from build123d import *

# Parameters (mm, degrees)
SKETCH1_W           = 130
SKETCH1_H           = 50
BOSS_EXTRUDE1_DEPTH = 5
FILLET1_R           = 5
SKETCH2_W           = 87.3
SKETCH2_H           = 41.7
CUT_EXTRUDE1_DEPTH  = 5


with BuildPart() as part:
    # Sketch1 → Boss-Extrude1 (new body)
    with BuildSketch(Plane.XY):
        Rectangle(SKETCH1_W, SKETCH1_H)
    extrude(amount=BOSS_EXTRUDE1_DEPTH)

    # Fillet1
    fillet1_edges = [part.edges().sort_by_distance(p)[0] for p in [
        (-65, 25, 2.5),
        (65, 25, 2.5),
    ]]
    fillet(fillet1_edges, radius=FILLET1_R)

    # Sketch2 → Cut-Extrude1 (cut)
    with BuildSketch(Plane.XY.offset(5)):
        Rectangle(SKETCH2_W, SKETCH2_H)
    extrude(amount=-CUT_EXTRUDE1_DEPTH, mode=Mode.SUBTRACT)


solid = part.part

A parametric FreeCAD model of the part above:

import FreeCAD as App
import Part
import Sketcher


def edges_at(feature, points):
    """Names of the edges that pass closest to the given points."""
    edges = feature.Shape.Edges
    near = lambda p: min(range(len(edges)), key=lambda i: edges[i].distToShape(Part.Vertex(*p))[0])
    return sorted({f"Edge{near(p) + 1}" for p in points})


def add_polygon(sketch, points):
    """Adds a closed chain of lines whose ends are joined by coincident constraints."""
    first, n = sketch.GeometryCount, len(points)
    for a, b in zip(points, points[1:] + points[:1]):
        sketch.addGeometry(Part.LineSegment(App.Vector(*a, 0), App.Vector(*b, 0)), False)
    for i in range(n):
        sketch.addConstraint(Sketcher.Constraint("Coincident", first + i, 2, first + (i + 1) % n, 1))

doc = App.newDocument("Part")
body = doc.addObject("PartDesign::Body", "Body")

# Sketch on XY plane
sketch1 = body.newObject("Sketcher::SketchObject", "Sketch")
sketch1.AttachmentSupport = (doc.getObject("XY_Plane"), [""])
sketch1.MapMode = "FlatFace"
add_polygon(sketch1, [(-65, 25), (-65, -25), (65, -25), (65, 25)])  # lines 0-3
sketch1.addConstraint([
    Sketcher.Constraint("Vertical", 0),
    Sketcher.Constraint("Horizontal", 1),
    Sketcher.Constraint("Vertical", 2),
    Sketcher.Constraint("Horizontal", 3),
    Sketcher.Constraint("Symmetric", 0, 2, 2, 2, -1, 1),
    Sketcher.Constraint("DistanceX", 1, 1, 1, 2, 130.0),
    Sketcher.Constraint("DistanceY", 0, 2, 0, 1, 50.0),
])
pad1 = body.newObject("PartDesign::Pad", "Pad")
pad1.Profile = sketch1
pad1.Length = 5
doc.recompute()

fillet = body.newObject("PartDesign::Fillet", "Fillet")
fillet.Base = (pad1, edges_at(pad1, [(-65, 25, 2.5), (65, 25, 2.5)]))
fillet.Radius = 5

# Sketch on XY plane
sketch2 = body.newObject("Sketcher::SketchObject", "Sketch001")
sketch2.AttachmentSupport = (doc.getObject("XY_Plane"), [""])
sketch2.MapMode = "FlatFace"
sketch2.AttachmentOffset = App.Placement(App.Vector(0, 0, 5), App.Rotation())
add_polygon(sketch2, [(-44, 21), (-44, -21), (44, -21), (44, 21)])  # lines 0-3
sketch2.addConstraint([
    Sketcher.Constraint("Vertical", 0),
    Sketcher.Constraint("Horizontal", 1),
    Sketcher.Constraint("Vertical", 2),
    Sketcher.Constraint("Horizontal", 3),
    Sketcher.Constraint("Symmetric", 0, 2, 2, 2, -1, 1),
    Sketcher.Constraint("DistanceX", 1, 1, 1, 2, 87.3),
    Sketcher.Constraint("DistanceY", 0, 2, 0, 1, 41.7),
])
pocket1 = body.newObject("PartDesign::Pocket", "Pocket")
pocket1.Profile = sketch2
pocket1.Length = 5

doc.recompute()
